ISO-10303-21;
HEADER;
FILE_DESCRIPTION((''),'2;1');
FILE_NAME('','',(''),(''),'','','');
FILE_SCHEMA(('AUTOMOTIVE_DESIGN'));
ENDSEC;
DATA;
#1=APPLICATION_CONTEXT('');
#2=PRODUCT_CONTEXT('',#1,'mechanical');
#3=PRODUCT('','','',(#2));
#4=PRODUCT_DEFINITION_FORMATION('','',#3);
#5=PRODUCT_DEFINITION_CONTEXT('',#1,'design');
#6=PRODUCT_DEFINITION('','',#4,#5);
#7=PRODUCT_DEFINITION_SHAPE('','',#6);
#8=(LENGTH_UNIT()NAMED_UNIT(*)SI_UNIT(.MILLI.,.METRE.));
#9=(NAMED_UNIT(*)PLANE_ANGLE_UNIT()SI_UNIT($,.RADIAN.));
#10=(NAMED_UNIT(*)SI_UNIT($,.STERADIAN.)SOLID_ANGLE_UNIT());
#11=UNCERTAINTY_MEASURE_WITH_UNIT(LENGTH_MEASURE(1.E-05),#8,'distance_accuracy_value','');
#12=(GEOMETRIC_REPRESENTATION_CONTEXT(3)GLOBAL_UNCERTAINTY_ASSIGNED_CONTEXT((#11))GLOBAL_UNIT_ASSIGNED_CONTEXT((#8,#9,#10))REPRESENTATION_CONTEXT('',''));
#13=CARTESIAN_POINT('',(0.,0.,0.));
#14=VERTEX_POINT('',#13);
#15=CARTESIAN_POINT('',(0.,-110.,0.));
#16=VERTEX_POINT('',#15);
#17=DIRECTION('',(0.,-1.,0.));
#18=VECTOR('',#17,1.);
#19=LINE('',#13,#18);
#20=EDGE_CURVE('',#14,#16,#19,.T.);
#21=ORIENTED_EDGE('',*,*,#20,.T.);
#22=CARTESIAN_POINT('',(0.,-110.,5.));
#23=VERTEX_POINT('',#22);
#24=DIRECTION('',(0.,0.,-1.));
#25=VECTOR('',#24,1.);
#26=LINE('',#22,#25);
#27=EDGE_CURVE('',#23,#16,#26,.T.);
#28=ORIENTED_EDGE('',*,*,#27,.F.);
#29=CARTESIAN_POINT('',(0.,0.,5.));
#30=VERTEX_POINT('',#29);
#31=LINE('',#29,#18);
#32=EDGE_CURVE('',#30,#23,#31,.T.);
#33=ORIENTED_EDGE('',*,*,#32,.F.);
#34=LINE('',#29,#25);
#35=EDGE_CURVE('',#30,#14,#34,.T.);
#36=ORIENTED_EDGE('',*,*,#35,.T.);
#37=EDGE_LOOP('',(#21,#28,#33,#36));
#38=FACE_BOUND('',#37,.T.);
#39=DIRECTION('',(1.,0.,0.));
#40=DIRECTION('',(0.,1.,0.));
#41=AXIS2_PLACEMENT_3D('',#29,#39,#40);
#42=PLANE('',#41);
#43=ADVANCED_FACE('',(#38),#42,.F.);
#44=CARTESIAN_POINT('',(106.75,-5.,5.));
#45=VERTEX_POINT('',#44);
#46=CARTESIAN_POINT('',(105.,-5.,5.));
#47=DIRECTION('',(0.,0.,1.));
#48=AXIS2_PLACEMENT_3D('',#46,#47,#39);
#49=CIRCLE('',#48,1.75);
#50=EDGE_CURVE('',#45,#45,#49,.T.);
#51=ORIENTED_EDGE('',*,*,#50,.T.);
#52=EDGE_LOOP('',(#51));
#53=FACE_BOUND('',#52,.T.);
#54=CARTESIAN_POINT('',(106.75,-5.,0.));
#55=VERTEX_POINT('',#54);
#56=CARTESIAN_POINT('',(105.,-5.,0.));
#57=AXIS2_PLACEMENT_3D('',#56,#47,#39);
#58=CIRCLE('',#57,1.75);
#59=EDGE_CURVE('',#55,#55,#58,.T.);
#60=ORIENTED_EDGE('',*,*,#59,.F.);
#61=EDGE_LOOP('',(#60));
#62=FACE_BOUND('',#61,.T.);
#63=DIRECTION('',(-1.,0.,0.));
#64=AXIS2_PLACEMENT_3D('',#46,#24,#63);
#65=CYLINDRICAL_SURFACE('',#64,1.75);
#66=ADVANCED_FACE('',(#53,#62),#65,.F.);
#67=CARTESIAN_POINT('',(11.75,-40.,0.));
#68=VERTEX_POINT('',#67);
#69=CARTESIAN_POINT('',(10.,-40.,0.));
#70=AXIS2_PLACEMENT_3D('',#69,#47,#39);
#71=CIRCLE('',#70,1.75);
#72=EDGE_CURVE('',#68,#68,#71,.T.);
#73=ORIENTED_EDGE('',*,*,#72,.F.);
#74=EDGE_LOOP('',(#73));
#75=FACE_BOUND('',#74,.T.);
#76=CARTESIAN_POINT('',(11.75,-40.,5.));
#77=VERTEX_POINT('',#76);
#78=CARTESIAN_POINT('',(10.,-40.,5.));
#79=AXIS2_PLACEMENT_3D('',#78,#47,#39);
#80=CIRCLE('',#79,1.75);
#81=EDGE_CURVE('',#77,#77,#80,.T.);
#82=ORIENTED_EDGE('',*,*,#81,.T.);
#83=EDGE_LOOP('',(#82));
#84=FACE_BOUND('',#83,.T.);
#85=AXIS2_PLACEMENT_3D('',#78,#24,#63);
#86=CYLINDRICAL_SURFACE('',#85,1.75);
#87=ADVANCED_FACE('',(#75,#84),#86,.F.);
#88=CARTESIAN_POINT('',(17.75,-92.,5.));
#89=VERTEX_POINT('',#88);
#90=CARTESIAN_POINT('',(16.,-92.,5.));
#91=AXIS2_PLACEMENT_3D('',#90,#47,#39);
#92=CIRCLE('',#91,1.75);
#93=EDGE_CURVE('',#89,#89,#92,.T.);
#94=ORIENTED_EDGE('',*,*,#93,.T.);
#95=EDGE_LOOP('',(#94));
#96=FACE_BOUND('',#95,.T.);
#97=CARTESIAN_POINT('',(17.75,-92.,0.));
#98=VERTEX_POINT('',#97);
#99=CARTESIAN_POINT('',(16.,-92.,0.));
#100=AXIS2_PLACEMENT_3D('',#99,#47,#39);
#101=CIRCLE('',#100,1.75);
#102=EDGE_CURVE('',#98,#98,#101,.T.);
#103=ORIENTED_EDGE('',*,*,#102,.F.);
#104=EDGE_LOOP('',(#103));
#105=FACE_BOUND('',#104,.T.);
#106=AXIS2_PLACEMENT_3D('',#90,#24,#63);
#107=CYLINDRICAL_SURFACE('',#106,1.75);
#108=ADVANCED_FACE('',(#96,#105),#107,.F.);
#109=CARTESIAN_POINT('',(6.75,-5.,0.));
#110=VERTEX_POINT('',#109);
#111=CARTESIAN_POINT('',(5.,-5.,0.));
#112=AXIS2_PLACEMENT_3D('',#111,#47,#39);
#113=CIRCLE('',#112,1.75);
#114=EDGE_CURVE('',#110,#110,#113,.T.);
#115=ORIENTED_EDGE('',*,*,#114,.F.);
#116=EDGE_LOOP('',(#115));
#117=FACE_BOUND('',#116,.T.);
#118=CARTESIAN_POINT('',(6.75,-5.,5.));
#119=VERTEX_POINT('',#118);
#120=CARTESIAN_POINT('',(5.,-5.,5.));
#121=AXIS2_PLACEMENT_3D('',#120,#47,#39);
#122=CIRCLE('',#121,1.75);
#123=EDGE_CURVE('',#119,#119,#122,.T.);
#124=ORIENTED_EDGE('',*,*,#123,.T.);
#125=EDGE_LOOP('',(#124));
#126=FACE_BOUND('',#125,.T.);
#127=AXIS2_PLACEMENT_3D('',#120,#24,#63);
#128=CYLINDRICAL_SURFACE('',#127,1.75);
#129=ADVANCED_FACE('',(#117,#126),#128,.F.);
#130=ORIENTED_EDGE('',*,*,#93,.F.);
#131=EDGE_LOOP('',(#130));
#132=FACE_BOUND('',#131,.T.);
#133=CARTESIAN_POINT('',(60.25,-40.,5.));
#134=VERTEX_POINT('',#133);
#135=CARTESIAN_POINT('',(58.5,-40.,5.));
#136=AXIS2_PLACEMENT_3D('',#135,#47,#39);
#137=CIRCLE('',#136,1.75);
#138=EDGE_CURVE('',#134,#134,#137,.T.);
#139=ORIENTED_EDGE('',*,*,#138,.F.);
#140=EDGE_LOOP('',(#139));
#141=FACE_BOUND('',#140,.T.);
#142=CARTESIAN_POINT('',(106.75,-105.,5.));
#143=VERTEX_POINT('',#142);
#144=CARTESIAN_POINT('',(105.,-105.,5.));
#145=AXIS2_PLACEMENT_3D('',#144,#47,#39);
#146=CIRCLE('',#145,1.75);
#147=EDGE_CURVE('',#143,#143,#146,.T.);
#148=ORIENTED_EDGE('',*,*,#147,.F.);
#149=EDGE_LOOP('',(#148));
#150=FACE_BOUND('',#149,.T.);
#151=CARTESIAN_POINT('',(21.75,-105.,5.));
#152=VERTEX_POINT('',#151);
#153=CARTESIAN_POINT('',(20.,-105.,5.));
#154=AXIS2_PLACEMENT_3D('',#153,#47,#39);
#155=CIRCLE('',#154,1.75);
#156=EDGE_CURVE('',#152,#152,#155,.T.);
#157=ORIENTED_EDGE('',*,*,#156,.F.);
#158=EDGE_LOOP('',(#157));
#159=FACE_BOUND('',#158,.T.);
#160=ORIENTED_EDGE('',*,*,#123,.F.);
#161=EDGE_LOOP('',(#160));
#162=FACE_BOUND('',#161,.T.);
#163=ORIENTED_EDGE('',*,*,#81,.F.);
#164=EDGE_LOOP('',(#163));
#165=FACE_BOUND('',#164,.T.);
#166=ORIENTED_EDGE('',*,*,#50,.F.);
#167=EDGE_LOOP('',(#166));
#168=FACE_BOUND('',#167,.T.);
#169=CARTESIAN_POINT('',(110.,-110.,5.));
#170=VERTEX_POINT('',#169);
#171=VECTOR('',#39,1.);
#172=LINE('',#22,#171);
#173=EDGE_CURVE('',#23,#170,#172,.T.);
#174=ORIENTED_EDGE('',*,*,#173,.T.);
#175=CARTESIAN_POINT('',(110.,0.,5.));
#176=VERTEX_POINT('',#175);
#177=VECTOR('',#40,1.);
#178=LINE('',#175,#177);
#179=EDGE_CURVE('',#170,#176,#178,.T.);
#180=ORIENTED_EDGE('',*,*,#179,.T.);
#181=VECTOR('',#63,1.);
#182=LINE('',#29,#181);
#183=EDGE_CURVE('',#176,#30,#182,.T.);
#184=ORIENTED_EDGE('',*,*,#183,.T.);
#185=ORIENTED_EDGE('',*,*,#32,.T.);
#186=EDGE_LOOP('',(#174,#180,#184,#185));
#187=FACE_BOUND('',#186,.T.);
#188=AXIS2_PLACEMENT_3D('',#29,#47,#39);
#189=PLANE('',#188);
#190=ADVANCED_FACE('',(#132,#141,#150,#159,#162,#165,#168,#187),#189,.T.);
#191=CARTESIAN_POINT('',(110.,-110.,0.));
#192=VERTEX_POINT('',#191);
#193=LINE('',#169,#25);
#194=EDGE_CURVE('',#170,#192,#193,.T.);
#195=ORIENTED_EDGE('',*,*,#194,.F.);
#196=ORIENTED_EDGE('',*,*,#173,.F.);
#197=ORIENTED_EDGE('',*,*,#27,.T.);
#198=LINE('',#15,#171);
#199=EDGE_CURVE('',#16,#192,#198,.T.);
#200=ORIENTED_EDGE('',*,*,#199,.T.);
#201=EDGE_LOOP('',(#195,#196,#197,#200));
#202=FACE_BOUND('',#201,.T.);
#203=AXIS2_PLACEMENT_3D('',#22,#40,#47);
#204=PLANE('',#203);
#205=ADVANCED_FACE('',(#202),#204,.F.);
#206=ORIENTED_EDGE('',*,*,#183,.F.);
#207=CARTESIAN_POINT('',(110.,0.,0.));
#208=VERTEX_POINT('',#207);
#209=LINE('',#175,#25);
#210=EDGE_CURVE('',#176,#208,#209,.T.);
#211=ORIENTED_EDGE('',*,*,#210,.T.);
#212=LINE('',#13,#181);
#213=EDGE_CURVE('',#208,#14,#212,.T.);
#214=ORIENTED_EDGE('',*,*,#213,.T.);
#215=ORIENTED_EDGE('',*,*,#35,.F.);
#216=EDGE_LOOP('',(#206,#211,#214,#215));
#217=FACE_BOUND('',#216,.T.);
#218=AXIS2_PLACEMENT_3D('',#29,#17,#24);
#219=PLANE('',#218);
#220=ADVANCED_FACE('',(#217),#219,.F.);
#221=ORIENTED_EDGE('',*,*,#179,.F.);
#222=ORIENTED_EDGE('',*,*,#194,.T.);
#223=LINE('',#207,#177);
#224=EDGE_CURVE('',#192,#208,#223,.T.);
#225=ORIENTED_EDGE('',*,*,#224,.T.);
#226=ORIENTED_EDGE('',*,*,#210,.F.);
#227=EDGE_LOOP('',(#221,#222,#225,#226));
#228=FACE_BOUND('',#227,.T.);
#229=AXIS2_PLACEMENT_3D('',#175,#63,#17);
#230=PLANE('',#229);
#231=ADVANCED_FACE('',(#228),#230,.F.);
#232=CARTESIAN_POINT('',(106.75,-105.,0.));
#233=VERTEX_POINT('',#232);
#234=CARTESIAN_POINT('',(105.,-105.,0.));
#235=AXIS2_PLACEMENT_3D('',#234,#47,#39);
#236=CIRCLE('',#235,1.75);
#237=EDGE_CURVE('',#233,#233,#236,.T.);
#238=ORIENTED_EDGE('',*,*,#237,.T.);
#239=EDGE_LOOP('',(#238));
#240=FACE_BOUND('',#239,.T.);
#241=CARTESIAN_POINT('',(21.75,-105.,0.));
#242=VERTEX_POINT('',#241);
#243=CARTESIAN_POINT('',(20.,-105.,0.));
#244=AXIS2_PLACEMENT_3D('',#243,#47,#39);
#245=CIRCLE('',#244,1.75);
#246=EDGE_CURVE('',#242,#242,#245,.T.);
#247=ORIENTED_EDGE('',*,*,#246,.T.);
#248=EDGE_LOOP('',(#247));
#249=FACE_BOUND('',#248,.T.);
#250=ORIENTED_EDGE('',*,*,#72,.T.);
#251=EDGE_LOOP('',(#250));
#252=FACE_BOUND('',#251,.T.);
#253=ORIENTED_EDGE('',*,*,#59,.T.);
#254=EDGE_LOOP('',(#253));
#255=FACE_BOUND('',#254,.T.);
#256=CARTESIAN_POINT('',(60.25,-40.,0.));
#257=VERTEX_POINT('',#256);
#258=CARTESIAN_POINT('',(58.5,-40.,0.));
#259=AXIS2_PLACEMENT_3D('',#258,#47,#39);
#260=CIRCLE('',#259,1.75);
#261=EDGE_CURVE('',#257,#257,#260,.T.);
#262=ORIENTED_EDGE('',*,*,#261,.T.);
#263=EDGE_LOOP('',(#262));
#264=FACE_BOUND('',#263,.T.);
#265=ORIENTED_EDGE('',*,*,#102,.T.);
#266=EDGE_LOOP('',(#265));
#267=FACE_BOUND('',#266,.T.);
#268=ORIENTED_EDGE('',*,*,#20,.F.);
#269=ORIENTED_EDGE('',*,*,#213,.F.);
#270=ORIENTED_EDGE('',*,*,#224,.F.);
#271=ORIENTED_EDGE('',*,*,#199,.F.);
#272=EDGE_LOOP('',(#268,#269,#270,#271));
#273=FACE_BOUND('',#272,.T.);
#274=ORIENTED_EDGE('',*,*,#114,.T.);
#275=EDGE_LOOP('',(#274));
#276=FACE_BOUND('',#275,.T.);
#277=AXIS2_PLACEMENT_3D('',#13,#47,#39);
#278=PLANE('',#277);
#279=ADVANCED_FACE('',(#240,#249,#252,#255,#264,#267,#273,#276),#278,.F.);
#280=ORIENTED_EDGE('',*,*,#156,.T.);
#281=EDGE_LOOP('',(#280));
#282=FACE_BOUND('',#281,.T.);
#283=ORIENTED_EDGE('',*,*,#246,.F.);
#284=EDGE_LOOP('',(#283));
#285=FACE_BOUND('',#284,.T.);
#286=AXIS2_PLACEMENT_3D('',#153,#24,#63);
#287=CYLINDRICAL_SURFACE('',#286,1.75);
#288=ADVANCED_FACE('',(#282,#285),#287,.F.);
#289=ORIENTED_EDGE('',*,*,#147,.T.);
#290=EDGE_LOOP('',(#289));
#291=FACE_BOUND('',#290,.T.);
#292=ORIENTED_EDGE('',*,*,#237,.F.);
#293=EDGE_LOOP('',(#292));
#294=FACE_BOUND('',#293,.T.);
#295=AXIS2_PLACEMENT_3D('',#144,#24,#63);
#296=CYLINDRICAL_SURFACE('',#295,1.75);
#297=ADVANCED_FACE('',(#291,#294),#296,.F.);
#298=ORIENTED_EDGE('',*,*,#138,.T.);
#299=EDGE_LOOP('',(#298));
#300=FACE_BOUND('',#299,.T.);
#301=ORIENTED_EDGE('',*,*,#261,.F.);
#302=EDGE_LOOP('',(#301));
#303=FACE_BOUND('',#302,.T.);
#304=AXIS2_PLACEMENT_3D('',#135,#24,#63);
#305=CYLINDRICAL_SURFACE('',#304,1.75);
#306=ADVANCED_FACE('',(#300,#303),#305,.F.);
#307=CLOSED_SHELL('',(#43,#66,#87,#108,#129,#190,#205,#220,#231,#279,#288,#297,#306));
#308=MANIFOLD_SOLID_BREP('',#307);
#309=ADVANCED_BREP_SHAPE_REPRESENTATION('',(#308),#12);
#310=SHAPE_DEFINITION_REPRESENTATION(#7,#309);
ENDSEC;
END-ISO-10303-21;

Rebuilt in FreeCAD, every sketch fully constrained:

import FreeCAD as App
import Part
import Sketcher
from FreeCAD import Vector

doc = App.newDocument("Part")
body = doc.addObject("PartDesign::Body", "Body")

# Sketch on XY plane
sketch1 = body.newObject("Sketcher::SketchObject", "Sketch")
sketch1.AttachmentSupport = (doc.getObject("XY_Plane"), [""])
sketch1.MapMode = "FlatFace"
sketch1.addGeometry([
    Part.LineSegment(Vector(0, 0, 0), Vector(0, -110, 0)),  # 0
    Part.LineSegment(Vector(0, -110, 0), Vector(110, -110, 0)),  # 1
    Part.LineSegment(Vector(110, -110, 0), Vector(110, 0, 0)),  # 2
    Part.LineSegment(Vector(110, 0, 0), Vector(0, 0, 0)),  # 3
    Part.Circle(Vector(20, -105, 0), Vector(0, 0, 1), 1.75),  # 4
    Part.Circle(Vector(16, -92, 0), Vector(0, 0, 1), 1.75),  # 5
    Part.Circle(Vector(105, -105, 0), Vector(0, 0, 1), 1.75),  # 6
    Part.Circle(Vector(10, -40, 0), Vector(0, 0, 1), 1.75),  # 7
    Part.Circle(Vector(5, -5, 0), Vector(0, 0, 1), 1.75),  # 8
    Part.Circle(Vector(58.5, -40, 0), Vector(0, 0, 1), 1.75),  # 9
    Part.Circle(Vector(105, -5, 0), Vector(0, 0, 1), 1.75),  # 10
], False)
sketch1.addConstraint([
    Sketcher.Constraint("Coincident", 0, 2, 1, 1),
    Sketcher.Constraint("Coincident", 1, 2, 2, 1),
    Sketcher.Constraint("Coincident", 2, 2, 3, 1),
    Sketcher.Constraint("Coincident", 3, 2, 0, 1),
    Sketcher.Constraint("Vertical", 0),
    Sketcher.Constraint("Horizontal", 1),
    Sketcher.Constraint("Vertical", 2),
    Sketcher.Constraint("Horizontal", 3),
    Sketcher.Constraint("Coincident", 3, 2, -1, 1),
    Sketcher.Constraint("Equal", 4, 5),
    Sketcher.Constraint("Equal", 5, 6),
    Sketcher.Constraint("Equal", 6, 7),
    Sketcher.Constraint("Equal", 7, 8),
    Sketcher.Constraint("Equal", 8, 9),
    Sketcher.Constraint("Equal", 9, 10),
    Sketcher.Constraint("Horizontal", 4, 3, 6, 3),
    Sketcher.Constraint("Horizontal", 7, 3, 9, 3),
    Sketcher.Constraint("Horizontal", 8, 3, 10, 3),
    Sketcher.Constraint("Vertical", 6, 3, 10, 3),
    Sketcher.Constraint("Equal", 3, 0),
    Sketcher.Constraint("Diameter", 4, 3.5),
    Sketcher.Constraint("DistanceX", 1, 1, 1, 2, 110.0),
    Sketcher.Constraint("DistanceX", -1, 1, 4, 3, 20.0),
    Sketcher.Constraint("DistanceY", 4, 3, -1, 1, 105.0),
    Sketcher.Constraint("DistanceX", -1, 1, 5, 3, 16.0),
    Sketcher.Constraint("DistanceY", 5, 3, -1, 1, 92.0),
    Sketcher.Constraint("DistanceX", -1, 1, 6, 3, 105.0),
    Sketcher.Constraint("DistanceX", -1, 1, 7, 3, 10.0),
    Sketcher.Constraint("DistanceY", 7, 3, -1, 1, 40.0),
    Sketcher.Constraint("DistanceX", -1, 1, 8, 3, 5.0),
    Sketcher.Constraint("DistanceY", 8, 3, -1, 1, 5.0),
    Sketcher.Constraint("DistanceX", -1, 1, 9, 3, 58.5),
])
pad1 = body.newObject("PartDesign::Pad", "Pad")
pad1.Profile = sketch1
pad1.Length = 5

doc.recompute()
